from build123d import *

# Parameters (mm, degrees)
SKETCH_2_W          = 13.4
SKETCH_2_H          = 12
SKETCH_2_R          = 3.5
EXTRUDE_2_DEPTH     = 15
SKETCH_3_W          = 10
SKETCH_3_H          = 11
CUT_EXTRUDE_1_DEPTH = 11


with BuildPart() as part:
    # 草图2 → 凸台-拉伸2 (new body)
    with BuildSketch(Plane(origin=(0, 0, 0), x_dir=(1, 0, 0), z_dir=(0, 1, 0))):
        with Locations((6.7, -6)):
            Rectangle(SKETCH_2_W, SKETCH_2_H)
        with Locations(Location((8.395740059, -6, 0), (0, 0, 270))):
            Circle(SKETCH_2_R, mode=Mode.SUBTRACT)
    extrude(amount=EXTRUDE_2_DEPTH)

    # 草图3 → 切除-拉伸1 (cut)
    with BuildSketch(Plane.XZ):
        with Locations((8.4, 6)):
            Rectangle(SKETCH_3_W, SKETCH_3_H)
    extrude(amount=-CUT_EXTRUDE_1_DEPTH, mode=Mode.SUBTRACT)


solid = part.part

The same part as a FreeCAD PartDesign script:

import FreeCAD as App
import Part
import Sketcher

V = App.Vector


def add_polygon(sketch, points):
    """Adds a closed chain of lines whose ends are joined by coincident constraints."""
    first, n = sketch.GeometryCount, len(points)
    for a, b in zip(points, points[1:] + points[:1]):
        sketch.addGeometry(Part.LineSegment(App.Vector(*a, 0), App.Vector(*b, 0)), False)
    for i in range(n):
        sketch.addConstraint(Sketcher.Constraint("Coincident", first + i, 2, first + (i + 1) % n, 1))

doc = App.newDocument("Part")
body = doc.addObject("PartDesign::Body", "Body")

# Sketch on XZ plane
sketch1 = doc.addObject("Sketcher::SketchObject", "Sketch")
body.addObject(sketch1)
sketch1.AttachmentSupport = (doc.XZ_Plane, [""])
sketch1.MapMode = "FlatFace"
add_polygon(sketch1, [(0, 0), (0, 12), (13.4, 12), (13.4, 0)])  # lines 0-3
sketch1.addGeometry(Part.Circle(V(8.39574, 6, 0), V(0, 0, 1), 3.5), False)  # 4
sketch1.addConstraint(Sketcher.Constraint("Vertical", 0))
sketch1.addConstraint(Sketcher.Constraint("Horizontal", 1))
sketch1.addConstraint(Sketcher.Constraint("Vertical", 2))
sketch1.addConstraint(Sketcher.Constraint("Horizontal", 3))
sketch1.addConstraint(Sketcher.Constraint("Coincident", 3, 2, -1, 1))
sketch1.addConstraint(Sketcher.Constraint("Diameter", 4, 7.0))
sketch1.addConstraint(Sketcher.Constraint("DistanceY", 0, 1, 0, 2, 12.0))
sketch1.addConstraint(Sketcher.Constraint("DistanceX", 1, 1, 1, 2, 13.4))
sketch1.addConstraint(Sketcher.Constraint("DistanceY", -1, 1, 4, 3, 6.0))
sketch1.addConstraint(Sketcher.Constraint("DistanceX", -1, 1, 4, 3, 8.39574))
pad1 = doc.addObject("PartDesign::Pad", "Pad")
body.addObject(pad1)
pad1.Profile = sketch1
pad1.Length = 15
pad1.Reversed = True

# Sketch on XZ plane
sketch2 = doc.addObject("Sketcher::SketchObject", "Sketch001")
body.addObject(sketch2)
sketch2.AttachmentSupport = (doc.XZ_Plane, [""])
sketch2.MapMode = "FlatFace"
add_polygon(sketch2, [(3.4, 11.5), (3.4, 0.5), (13.4, 0.5), (13.4, 11.5)])  # lines 0-3
sketch2.addConstraint(Sketcher.Constraint("Vertical", 0))
sketch2.addConstraint(Sketcher.Constraint("Horizontal", 1))
sketch2.addConstraint(Sketcher.Constraint("Vertical", 2))
sketch2.addConstraint(Sketcher.Constraint("Horizontal", 3))
sketch2.addConstraint(Sketcher.Constraint("DistanceX", 1, 1, 1, 2, 10.0))
sketch2.addConstraint(Sketcher.Constraint("DistanceY", 0, 2, 0, 1, 11.0))
sketch2.addConstraint(Sketcher.Constraint("DistanceX", -1, 1, 0, 2, 3.4))
sketch2.addConstraint(Sketcher.Constraint("DistanceY", -1, 1, 0, 2, 0.5))
pocket1 = doc.addObject("PartDesign::Pocket", "Pocket")
body.addObject(pocket1)
pocket1.Profile = sketch2
pocket1.Length = 11

doc.recompute()
